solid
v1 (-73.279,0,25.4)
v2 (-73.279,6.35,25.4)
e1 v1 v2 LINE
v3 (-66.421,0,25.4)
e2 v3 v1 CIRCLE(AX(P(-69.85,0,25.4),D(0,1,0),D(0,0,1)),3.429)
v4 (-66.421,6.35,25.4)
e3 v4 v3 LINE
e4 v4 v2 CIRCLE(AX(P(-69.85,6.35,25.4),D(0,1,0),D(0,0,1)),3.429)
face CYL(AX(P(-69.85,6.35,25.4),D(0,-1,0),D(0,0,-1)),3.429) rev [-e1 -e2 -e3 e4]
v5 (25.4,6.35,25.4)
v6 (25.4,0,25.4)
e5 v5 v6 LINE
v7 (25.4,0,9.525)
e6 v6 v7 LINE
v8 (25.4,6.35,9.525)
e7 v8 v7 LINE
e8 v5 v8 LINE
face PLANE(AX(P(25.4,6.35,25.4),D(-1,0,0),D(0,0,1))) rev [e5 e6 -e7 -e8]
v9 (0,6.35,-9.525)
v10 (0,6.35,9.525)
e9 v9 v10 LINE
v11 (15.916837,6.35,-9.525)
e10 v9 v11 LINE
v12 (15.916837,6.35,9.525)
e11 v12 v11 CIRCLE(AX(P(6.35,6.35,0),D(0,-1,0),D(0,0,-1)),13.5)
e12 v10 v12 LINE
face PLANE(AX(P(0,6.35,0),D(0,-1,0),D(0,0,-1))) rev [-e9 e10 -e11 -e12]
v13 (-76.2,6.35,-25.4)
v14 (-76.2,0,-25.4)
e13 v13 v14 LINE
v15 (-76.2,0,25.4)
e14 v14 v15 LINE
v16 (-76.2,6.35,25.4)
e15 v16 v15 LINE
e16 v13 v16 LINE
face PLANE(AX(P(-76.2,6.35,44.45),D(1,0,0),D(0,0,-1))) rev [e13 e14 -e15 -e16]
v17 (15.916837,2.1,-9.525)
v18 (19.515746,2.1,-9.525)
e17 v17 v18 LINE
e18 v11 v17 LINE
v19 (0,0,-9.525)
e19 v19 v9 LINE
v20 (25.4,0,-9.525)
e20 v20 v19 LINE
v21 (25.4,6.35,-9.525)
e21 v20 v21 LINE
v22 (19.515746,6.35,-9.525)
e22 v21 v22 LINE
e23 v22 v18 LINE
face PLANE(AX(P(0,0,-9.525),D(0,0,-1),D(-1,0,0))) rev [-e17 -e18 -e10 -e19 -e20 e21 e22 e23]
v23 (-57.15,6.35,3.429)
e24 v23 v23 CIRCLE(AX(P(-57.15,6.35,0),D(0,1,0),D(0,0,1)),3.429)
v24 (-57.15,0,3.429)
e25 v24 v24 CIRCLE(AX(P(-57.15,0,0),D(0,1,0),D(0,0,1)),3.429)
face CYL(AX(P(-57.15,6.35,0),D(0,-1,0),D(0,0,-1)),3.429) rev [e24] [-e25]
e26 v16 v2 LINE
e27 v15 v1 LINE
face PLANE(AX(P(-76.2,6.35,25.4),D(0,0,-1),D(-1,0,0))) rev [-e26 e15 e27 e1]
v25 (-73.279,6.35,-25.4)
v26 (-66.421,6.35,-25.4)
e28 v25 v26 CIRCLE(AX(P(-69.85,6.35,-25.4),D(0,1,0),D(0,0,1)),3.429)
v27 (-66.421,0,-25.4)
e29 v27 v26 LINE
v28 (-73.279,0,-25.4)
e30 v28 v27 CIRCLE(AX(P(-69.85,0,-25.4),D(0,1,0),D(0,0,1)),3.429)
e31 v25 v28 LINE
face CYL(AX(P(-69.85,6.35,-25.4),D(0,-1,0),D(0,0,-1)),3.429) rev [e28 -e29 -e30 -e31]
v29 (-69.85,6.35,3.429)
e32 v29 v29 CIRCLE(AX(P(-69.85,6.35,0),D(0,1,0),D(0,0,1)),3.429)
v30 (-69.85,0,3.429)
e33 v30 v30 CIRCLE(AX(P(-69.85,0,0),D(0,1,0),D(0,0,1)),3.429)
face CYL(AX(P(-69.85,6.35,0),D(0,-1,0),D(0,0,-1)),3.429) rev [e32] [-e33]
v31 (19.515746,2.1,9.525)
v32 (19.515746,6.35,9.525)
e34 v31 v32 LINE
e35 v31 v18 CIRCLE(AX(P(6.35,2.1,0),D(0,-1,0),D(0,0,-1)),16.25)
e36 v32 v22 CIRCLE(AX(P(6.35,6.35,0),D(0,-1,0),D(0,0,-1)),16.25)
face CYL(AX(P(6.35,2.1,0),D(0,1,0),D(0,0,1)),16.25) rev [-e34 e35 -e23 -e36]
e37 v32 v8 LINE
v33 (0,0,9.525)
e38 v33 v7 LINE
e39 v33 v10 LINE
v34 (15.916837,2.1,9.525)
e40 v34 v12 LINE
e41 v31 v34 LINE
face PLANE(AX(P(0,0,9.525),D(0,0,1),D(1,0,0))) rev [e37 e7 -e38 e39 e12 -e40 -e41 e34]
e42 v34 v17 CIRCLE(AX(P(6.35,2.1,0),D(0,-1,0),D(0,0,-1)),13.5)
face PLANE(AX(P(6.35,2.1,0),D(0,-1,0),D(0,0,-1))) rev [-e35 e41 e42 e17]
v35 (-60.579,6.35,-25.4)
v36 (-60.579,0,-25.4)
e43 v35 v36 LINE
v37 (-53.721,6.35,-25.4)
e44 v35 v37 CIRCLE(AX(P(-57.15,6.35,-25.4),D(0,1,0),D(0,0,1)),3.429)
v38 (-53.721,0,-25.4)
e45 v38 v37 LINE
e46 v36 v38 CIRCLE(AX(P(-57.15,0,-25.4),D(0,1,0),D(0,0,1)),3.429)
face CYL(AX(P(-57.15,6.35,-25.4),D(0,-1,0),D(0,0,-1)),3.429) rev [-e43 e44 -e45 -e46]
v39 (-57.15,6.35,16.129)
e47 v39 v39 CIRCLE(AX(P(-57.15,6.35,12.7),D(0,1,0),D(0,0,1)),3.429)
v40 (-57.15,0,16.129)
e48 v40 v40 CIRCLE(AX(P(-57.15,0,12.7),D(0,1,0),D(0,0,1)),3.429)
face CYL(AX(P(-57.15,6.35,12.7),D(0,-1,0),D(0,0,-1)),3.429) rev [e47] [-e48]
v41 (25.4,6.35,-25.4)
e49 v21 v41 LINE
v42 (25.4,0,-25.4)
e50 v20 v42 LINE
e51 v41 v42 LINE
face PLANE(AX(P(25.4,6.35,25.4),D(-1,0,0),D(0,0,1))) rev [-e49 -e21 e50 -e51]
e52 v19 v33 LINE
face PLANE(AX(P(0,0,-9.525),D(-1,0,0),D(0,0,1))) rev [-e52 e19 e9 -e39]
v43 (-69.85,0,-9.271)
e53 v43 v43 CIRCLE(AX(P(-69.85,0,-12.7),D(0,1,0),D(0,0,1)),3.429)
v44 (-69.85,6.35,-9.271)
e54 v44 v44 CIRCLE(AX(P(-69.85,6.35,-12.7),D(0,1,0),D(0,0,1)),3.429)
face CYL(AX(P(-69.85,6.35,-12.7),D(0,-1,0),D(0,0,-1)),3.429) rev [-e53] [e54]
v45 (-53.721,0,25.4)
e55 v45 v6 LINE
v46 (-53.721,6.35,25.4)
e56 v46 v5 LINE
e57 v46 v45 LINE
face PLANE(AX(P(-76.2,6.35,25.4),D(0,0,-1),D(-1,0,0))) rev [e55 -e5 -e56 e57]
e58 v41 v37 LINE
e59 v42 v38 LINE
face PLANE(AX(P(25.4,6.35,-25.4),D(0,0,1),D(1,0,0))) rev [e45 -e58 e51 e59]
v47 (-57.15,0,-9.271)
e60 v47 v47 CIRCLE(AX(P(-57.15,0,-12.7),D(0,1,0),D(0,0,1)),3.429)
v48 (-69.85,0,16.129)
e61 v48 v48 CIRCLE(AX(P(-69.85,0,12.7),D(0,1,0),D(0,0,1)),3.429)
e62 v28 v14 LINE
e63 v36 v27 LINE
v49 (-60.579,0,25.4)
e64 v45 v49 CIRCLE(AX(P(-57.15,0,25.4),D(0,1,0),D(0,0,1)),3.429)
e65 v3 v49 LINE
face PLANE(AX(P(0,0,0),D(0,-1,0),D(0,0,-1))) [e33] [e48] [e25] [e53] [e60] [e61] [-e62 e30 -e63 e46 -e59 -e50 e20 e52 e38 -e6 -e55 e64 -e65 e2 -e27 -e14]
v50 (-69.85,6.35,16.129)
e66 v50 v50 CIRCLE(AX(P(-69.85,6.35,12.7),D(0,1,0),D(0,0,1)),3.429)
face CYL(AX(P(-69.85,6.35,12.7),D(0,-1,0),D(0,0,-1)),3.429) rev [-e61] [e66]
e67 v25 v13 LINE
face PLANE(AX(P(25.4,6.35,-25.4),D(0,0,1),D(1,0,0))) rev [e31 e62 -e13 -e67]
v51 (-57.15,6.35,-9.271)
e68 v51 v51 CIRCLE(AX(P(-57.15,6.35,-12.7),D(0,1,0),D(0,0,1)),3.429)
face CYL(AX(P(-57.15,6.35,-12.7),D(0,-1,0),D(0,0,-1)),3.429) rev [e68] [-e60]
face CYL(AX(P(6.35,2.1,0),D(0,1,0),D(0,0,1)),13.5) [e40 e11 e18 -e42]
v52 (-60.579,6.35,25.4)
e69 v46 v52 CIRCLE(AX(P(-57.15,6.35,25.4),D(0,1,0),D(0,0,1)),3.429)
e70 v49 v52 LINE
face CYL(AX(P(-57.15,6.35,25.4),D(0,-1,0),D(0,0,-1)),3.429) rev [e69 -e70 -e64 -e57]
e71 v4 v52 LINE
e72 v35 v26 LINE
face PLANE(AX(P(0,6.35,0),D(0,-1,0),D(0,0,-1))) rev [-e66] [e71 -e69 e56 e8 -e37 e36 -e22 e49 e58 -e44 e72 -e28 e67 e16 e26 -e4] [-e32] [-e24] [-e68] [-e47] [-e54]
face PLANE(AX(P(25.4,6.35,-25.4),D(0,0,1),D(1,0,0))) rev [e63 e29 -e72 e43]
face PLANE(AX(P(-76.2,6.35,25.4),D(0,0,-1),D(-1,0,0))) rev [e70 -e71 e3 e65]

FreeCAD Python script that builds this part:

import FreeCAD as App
import Part
import Sketcher

V = App.Vector
Q = App.Units.Quantity


def add_polygon(sketch, points):
    """Adds a closed chain of lines whose ends are joined by coincident constraints."""
    first, n = sketch.GeometryCount, len(points)
    for a, b in zip(points, points[1:] + points[:1]):
        sketch.addGeometry(Part.LineSegment(App.Vector(*a, 0), App.Vector(*b, 0)), False)
    for i in range(n):
        sketch.addConstraint(Sketcher.Constraint("Coincident", first + i, 2, first + (i + 1) % n, 1))

doc = App.newDocument("Part")
body = doc.addObject("PartDesign::Body", "Body")

# Sketch on XZ plane
sketch1 = doc.addObject("Sketcher::SketchObject", "Sketch")
body.addObject(sketch1)
sketch1.AttachmentSupport = (doc.XZ_Plane, [""])
sketch1.MapMode = "FlatFace"
add_polygon(sketch1, [(-76.2, -44.45), (-76.2, 44.45), (76.2, 44.45), (76.2, -44.45)])  # lines 0-3
sketch1.addGeometry(Part.Circle(V(-69.85, 38.1, 0), V(0, 0, 1), 3.429), False)  # 4
sketch1.addGeometry(Part.Circle(V(-69.85, 25.4, 0), V(0, 0, 1), 3.429), False)  # 5
sketch1.addGeometry(Part.Circle(V(-69.85, 12.7, 0), V(0, 0, 1), 3.429), False)  # 6
sketch1.addGeometry(Part.Circle(V(-69.85, 0, 0), V(0, 0, 1), 3.429), False)  # 7
sketch1.addGeometry(Part.Circle(V(-57.15, 38.1, 0), V(0, 0, 1), 3.429), False)  # 8
sketch1.addGeometry(Part.Circle(V(-57.15, 25.4, 0), V(0, 0, 1), 3.429), False)  # 9
sketch1.addGeometry(Part.Circle(V(-57.15, 12.7, 0), V(0, 0, 1), 3.429), False)  # 10
sketch1.addGeometry(Part.Circle(V(-57.15, 0, 0), V(0, 0, 1), 3.429), False)  # 11
sketch1.addGeometry(Part.Circle(V(-69.85, -12.7, 0), V(0, 0, 1), 3.429), False)  # 12
sketch1.addGeometry(Part.Circle(V(-69.85, -25.4, 0), V(0, 0, 1), 3.429), False)  # 13
sketch1.addGeometry(Part.Circle(V(-69.85, -38.1, 0), V(0, 0, 1), 3.429), False)  # 14
sketch1.addGeometry(Part.Circle(V(-57.15, -12.7, 0), V(0, 0, 1), 3.429), False)  # 15
sketch1.addGeometry(Part.Circle(V(-57.15, -25.4, 0), V(0, 0, 1), 3.429), False)  # 16
sketch1.addGeometry(Part.Circle(V(-57.15, -38.1, 0), V(0, 0, 1), 3.429), False)  # 17
sketch1.addConstraint(Sketcher.Constraint("Vertical", 0))
sketch1.addConstraint(Sketcher.Constraint("Horizontal", 1))
sketch1.addConstraint(Sketcher.Constraint("Vertical", 2))
sketch1.addConstraint(Sketcher.Constraint("Horizontal", 3))
sketch1.addConstraint(Sketcher.Constraint("Equal", 4, 5))
sketch1.addConstraint(Sketcher.Constraint("Equal", 5, 6))
sketch1.addConstraint(Sketcher.Constraint("Equal", 6, 7))
sketch1.addConstraint(Sketcher.Constraint("Equal", 7, 8))
sketch1.addConstraint(Sketcher.Constraint("Equal", 8, 9))
sketch1.addConstraint(Sketcher.Constraint("Equal", 9, 10))
sketch1.addConstraint(Sketcher.Constraint("Equal", 10, 11))
sketch1.addConstraint(Sketcher.Constraint("Equal", 11, 12))
sketch1.addConstraint(Sketcher.Constraint("Equal", 12, 13))
sketch1.addConstraint(Sketcher.Constraint("Equal", 13, 14))
sketch1.addConstraint(Sketcher.Constraint("Equal", 14, 15))
sketch1.addConstraint(Sketcher.Constraint("Equal", 15, 16))
sketch1.addConstraint(Sketcher.Constraint("Equal", 16, 17))
sketch1.addConstraint(Sketcher.Constraint("Symmetric", 0, 2, 2, 2, -1, 1))
sketch1.addConstraint(Sketcher.Constraint("Symmetric", 6, 3, 12, 3, -1))
sketch1.addConstraint(Sketcher.Constraint("Symmetric", 5, 3, 13, 3, -1))
sketch1.addConstraint(Sketcher.Constraint("Symmetric", 4, 3, 14, 3, -1))
sketch1.addConstraint(Sketcher.Constraint("Symmetric", 10, 3, 15, 3, -1))
sketch1.addConstraint(Sketcher.Constraint("Symmetric", 9, 3, 16, 3, -1))
sketch1.addConstraint(Sketcher.Constraint("Symmetric", 8, 3, 17, 3, -1))
sketch1.addConstraint(Sketcher.Constraint("PointOnObject", 7, 3, -1))
sketch1.addConstraint(Sketcher.Constraint("PointOnObject", 11, 3, -1))
sketch1.addConstraint(Sketcher.Constraint("Horizontal", 4, 3, 8, 3))
sketch1.addConstraint(Sketcher.Constraint("Horizontal", 5, 3, 9, 3))
sketch1.addConstraint(Sketcher.Constraint("Horizontal", 6, 3, 10, 3))
sketch1.addConstraint(Sketcher.Constraint("Vertical", 4, 3, 5, 3))
sketch1.addConstraint(Sketcher.Constraint("Vertical", 5, 3, 6, 3))
sketch1.addConstraint(Sketcher.Constraint("Vertical", 6, 3, 7, 3))
sketch1.addConstraint(Sketcher.Constraint("Vertical", 8, 3, 9, 3))
sketch1.addConstraint(Sketcher.Constraint("Vertical", 9, 3, 10, 3))
sketch1.addConstraint(Sketcher.Constraint("Vertical", 10, 3, 11, 3))
sketch1.addConstraint(Sketcher.Constraint("Diameter", 4, Q("0.27 in")))
sketch1.addConstraint(Sketcher.Constraint("DistanceX", 1, 1, 1, 2, Q("6 in")))
sketch1.addConstraint(Sketcher.Constraint("DistanceY", 0, 1, 0, 2, Q("3.5 in")))
sketch1.addConstraint(Sketcher.Constraint("DistanceY", -1, 1, 5, 3, Q("1 in")))
sketch1.addConstraint(Sketcher.Constraint("DistanceY", 6, 3, 4, 3, Q("1 in")))
sketch1.addConstraint(Sketcher.Constraint("DistanceY", 12, 3, 6, 3, Q("1 in")))
sketch1.addConstraint(Sketcher.Constraint("DistanceX", 4, 3, 8, 3, Q("0.5 in")))
sketch1.addConstraint(Sketcher.Constraint("DistanceX", 4, 3, -1, 1, Q("2.75 in")))
pad1 = doc.addObject("PartDesign::Pad", "Pad")
body.addObject(pad1)
pad1.Profile = sketch1
pad1.Length = Q("0.25 in")
pad1.Reversed = True

# Sketch on XZ plane
sketch2 = doc.addObject("Sketcher::SketchObject", "Sketch001")
body.addObject(sketch2)
sketch2.AttachmentSupport = (doc.XZ_Plane, [""])
sketch2.MapMode = "FlatFace"
sketch2.AttachmentOffset = App.Placement(V(0, 0, -0.25 * 25.4), App.Rotation())
sketch2.addGeometry(Part.Circle(V(6.35, 0, 0), V(0, 0, 1), 16.25), False)
sketch2.addGeometry(Part.Circle(V(6.35, 0, 0), V(0, 0, 1), 13.5), False)
sketch2.addConstraint(Sketcher.Constraint("Coincident", 1, 3, 0, 3))
sketch2.addConstraint(Sketcher.Constraint("PointOnObject", 0, 3, -1))
sketch2.addConstraint(Sketcher.Constraint("Diameter", 0, Q("32.5 mm")))
sketch2.addConstraint(Sketcher.Constraint("Diameter", 1, Q("27 mm")))
sketch2.addConstraint(Sketcher.Constraint("DistanceX", -1, 1, 0, 3, Q("0.25 in")))
pocket1 = doc.addObject("PartDesign::Pocket", "Pocket")
body.addObject(pocket1)
pocket1.Profile = sketch2
pocket1.Length = 4.25
pocket1.Reversed = True

# Sketch on XZ plane
sketch3 = doc.addObject("Sketcher::SketchObject", "Sketch002")
body.addObject(sketch3)
sketch3.AttachmentSupport = (doc.XZ_Plane, [""])
sketch3.MapMode = "FlatFace"
sketch3.AttachmentOffset = App.Placement(V(0, 0, -0.25 * 25.4), App.Rotation())
add_polygon(sketch3, [(0, -9.525), (0, 9.525), (76.2, 9.525), (76.2, -9.525)])  # lines 0-3
sketch3.addConstraint(Sketcher.Constraint("Vertical", 0))
sketch3.addConstraint(Sketcher.Constraint("Horizontal", 1))
sketch3.addConstraint(Sketcher.Constraint("Vertical", 2))
sketch3.addConstraint(Sketcher.Constraint("Horizontal", 3))
sketch3.addConstraint(Sketcher.Constraint("Symmetric", 0, 2, 3, 2, -1, 1))
sketch3.addConstraint(Sketcher.Constraint("DistanceX", 1, 1, 1, 2, Q("3 in")))
sketch3.addConstraint(Sketcher.Constraint("DistanceY", 0, 1, 0, 2, Q("0.75 in")))
pocket2 = doc.addObject("PartDesign::Pocket", "Pocket001")
body.addObject(pocket2)
pocket2.Profile = sketch3
pocket2.Type = "ThroughAll"
pocket2.Reversed = True

# Sketch on XZ plane
sketch4 = doc.addObject("Sketcher::SketchObject", "Sketch003")
body.addObject(sketch4)
sketch4.AttachmentSupport = (doc.XZ_Plane, [""])
sketch4.MapMode = "FlatFace"
add_polygon(sketch4, [(-94.855, -63.105), (-94.855, 63.105), (94.855, 63.105), (94.855, -63.105)])  # lines 0-3
add_polygon(sketch4, [(25.4, 25.4), (-76.2, 25.4), (-76.2, -25.4), (25.4, -25.4)])  # lines 4-7
sketch4.addConstraint(Sketcher.Constraint("Vertical", 0))
sketch4.addConstraint(Sketcher.Constraint("Horizontal", 1))
sketch4.addConstraint(Sketcher.Constraint("Vertical", 2))
sketch4.addConstraint(Sketcher.Constraint("Horizontal", 3))
sketch4.addConstraint(Sketcher.Constraint("Horizontal", 4))
sketch4.addConstraint(Sketcher.Constraint("Vertical", 5))
sketch4.addConstraint(Sketcher.Constraint("Horizontal", 6))
sketch4.addConstraint(Sketcher.Constraint("Vertical", 7))
sketch4.addConstraint(Sketcher.Constraint("Symmetric", 0, 2, 2, 2, -1, 1))
sketch4.addConstraint(Sketcher.Constraint("DistanceX", 4, 2, 4, 1, Q("4 in")))
sketch4.addConstraint(Sketcher.Constraint("DistanceY", 5, 2, 5, 1, Q("2 in")))
sketch4.addConstraint(Sketcher.Constraint("DistanceX", 4, 2, -1, 1, Q("3 in")))
sketch4.addConstraint(Sketcher.Constraint("DistanceY", -1, 1, 4, 2, Q("1 in")))
sketch4.addConstraint(Sketcher.Constraint("DistanceX", 1, 1, 1, 2, Q("189.71 mm")))
sketch4.addConstraint(Sketcher.Constraint("DistanceY", 0, 1, 0, 2, Q("126.21 mm")))
pocket3 = doc.addObject("PartDesign::Pocket", "Pocket002")
body.addObject(pocket3)
pocket3.Profile = sketch4
pocket3.Type = "ThroughAll"

doc.recompute()
